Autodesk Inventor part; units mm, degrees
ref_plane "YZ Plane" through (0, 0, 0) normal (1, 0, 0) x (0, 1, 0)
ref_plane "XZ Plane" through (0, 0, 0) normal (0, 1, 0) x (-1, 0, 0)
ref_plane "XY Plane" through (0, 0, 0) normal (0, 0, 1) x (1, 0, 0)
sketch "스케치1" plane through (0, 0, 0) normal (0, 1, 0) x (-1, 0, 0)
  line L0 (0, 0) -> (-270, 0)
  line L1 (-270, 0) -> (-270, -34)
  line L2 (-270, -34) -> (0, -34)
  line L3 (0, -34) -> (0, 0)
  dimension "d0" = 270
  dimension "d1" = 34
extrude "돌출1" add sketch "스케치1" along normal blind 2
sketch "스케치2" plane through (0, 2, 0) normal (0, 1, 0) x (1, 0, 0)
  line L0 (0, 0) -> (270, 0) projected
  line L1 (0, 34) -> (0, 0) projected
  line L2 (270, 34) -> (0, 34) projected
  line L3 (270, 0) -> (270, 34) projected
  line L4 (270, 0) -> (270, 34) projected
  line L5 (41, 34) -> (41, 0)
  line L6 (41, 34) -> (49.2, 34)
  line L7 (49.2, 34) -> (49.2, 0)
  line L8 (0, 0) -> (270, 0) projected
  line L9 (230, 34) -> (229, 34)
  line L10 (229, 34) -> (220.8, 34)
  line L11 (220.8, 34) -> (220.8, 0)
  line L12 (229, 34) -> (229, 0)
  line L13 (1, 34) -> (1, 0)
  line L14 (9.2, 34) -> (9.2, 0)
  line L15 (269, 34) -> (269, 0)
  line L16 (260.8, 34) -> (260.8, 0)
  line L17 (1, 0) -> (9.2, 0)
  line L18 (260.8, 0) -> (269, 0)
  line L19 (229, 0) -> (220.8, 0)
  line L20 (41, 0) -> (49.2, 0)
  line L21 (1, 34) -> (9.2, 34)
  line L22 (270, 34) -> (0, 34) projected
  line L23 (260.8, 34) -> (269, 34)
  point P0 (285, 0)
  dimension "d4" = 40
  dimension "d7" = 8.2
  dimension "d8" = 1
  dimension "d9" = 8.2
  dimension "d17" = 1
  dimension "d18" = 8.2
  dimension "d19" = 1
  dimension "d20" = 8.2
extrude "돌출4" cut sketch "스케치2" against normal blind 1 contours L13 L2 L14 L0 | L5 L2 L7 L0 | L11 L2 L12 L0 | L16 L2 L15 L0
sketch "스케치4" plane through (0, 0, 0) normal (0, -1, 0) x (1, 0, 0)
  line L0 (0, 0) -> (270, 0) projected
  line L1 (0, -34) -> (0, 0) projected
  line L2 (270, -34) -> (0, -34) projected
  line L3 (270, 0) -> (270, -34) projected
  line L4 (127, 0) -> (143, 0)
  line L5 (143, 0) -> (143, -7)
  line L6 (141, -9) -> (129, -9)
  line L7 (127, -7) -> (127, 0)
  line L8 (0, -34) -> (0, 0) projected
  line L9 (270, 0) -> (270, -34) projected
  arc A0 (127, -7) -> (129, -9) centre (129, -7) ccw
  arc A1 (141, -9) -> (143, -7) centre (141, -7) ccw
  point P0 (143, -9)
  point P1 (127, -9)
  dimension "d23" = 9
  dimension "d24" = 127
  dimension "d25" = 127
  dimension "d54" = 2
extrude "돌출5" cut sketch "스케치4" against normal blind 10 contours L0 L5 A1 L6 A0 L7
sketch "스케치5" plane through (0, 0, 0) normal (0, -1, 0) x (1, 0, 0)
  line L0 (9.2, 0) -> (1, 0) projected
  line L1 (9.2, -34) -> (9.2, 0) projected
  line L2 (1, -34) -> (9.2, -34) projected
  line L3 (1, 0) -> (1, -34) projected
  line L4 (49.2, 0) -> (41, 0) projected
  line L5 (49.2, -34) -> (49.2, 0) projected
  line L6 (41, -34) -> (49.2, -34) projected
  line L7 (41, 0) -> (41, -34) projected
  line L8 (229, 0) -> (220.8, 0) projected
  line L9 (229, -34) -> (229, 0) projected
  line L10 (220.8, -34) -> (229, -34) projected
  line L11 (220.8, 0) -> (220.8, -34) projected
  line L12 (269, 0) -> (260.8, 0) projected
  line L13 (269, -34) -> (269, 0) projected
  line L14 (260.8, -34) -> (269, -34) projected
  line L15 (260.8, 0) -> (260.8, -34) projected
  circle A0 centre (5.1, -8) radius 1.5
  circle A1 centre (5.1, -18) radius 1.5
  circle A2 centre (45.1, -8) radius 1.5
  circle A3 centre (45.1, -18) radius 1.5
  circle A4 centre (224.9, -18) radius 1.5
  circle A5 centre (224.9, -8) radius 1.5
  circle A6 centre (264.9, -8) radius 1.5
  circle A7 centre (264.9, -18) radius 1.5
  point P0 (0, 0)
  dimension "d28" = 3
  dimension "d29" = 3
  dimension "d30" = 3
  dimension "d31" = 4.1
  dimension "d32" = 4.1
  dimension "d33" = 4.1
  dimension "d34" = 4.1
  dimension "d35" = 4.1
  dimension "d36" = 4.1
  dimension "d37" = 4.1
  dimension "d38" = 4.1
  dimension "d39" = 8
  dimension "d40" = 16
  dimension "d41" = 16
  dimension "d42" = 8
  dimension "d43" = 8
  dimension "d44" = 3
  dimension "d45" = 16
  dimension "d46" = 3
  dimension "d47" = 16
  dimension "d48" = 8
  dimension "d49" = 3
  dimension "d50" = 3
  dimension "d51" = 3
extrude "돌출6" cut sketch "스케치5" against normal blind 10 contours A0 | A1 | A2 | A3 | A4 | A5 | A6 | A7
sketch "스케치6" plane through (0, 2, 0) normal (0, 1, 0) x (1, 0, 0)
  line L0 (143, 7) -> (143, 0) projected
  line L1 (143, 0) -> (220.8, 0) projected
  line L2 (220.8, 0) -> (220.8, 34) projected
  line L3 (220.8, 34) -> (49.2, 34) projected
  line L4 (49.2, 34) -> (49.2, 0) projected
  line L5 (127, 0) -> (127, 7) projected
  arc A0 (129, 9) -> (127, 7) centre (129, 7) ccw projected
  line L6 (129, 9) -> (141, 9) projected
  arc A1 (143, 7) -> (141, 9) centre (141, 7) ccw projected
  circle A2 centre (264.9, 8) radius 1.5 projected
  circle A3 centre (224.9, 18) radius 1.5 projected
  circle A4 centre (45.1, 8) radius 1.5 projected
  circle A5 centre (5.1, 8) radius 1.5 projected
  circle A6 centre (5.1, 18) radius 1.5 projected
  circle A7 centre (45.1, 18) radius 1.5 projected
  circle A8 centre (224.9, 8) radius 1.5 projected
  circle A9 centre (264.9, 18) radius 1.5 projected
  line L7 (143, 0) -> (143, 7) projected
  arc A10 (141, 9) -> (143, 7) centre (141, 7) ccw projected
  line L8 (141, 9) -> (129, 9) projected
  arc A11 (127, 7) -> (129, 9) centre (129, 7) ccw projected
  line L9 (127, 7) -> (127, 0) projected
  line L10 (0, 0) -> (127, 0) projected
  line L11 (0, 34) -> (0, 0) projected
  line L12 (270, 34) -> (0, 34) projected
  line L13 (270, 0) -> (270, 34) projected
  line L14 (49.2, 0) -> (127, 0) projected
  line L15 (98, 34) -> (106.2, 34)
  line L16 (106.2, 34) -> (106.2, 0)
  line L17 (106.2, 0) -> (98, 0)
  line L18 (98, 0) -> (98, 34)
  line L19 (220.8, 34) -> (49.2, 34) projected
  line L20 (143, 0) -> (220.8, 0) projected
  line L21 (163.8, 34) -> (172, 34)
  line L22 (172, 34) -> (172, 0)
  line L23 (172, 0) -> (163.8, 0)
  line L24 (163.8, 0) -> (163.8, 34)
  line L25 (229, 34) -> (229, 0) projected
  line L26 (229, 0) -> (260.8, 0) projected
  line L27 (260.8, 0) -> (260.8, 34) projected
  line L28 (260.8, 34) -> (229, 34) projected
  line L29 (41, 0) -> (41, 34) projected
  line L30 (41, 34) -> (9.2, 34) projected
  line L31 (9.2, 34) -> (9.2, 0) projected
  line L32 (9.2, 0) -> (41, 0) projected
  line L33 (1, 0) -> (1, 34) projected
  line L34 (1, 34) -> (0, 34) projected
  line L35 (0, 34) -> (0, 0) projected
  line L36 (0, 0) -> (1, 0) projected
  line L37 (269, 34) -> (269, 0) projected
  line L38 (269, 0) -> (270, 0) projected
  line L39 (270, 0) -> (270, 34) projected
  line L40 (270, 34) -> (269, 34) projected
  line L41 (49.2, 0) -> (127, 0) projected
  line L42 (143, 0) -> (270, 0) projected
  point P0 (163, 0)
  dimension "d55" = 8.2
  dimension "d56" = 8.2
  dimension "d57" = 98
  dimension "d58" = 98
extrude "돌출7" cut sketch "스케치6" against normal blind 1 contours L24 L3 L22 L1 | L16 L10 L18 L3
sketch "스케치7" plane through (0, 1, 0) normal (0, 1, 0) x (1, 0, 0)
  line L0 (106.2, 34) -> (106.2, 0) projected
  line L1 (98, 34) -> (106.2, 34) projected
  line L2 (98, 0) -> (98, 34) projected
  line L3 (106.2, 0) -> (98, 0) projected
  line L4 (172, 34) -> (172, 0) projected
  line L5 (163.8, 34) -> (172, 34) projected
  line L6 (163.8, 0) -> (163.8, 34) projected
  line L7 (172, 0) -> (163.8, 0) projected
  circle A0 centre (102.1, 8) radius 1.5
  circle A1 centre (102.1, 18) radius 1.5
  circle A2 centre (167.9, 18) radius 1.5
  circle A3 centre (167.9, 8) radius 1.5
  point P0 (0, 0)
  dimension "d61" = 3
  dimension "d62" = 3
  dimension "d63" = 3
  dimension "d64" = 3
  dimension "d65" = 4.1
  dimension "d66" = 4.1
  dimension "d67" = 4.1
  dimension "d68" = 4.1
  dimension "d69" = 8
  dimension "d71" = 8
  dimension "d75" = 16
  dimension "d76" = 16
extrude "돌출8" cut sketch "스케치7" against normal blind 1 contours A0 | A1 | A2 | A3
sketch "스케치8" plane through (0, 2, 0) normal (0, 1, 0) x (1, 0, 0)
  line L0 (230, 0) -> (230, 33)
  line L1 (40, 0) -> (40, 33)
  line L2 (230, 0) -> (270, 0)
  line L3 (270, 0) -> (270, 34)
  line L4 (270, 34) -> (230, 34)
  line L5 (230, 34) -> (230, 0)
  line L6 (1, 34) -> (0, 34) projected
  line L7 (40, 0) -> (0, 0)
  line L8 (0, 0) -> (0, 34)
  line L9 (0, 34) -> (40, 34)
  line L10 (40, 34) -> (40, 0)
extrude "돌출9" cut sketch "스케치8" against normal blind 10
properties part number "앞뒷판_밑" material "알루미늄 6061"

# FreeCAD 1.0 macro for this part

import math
import FreeCAD as App
import Part
import Sketcher

V = App.Vector
Q = App.Units.Quantity

doc = App.newDocument("Part")
body = doc.addObject("PartDesign::Body", "Body")

# Sketch on XZ plane
sketch1 = body.newObject("Sketcher::SketchObject", "Sketch")
sketch1.AttachmentSupport = (doc.getObject("XZ_Plane"), [""])
sketch1.MapMode = "FlatFace"
sketch1.addGeometry([
    Part.LineSegment(V(0, -34, 0), V(0, 0, 0)),
    Part.LineSegment(V(0, 0, 0), V(270, 0, 0)),
    Part.LineSegment(V(270, 0, 0), V(270, -34, 0)),
    Part.LineSegment(V(270, -34, 0), V(0, -34, 0)),
], False)
sketch1.addConstraint([
    Sketcher.Constraint("Coincident", 0, 2, 1, 1),
    Sketcher.Constraint("Coincident", 1, 2, 2, 1),
    Sketcher.Constraint("Coincident", 2, 2, 3, 1),
    Sketcher.Constraint("Coincident", 3, 2, 0, 1),
    Sketcher.Constraint("Vertical", 0),
    Sketcher.Constraint("Horizontal", 1),
    Sketcher.Constraint("Vertical", 2),
    Sketcher.Constraint("Horizontal", 3),
    Sketcher.Constraint("Coincident", 0, 2, -1, 1),
    Sketcher.Constraint("DistanceX", 1, 1, 1, 2, Q("270 mm")),
    Sketcher.Constraint("DistanceY", 0, 1, 0, 2, Q("34 mm")),
])
pad1 = body.newObject("PartDesign::Pad", "Pad")
pad1.Profile = sketch1
pad1.Length = 2
pad1.Reversed = True

# Sketch on XZ plane
sketch2 = body.newObject("Sketcher::SketchObject", "Sketch001")
sketch2.AttachmentSupport = (doc.getObject("XZ_Plane"), [""])
sketch2.MapMode = "FlatFace"
sketch2.AttachmentOffset = App.Placement(V(0, 0, -2), App.Rotation())
sketch2.addGeometry([
    Part.LineSegment(V(1, -34, 0), V(1, 0, 0)),  # 0
    Part.LineSegment(V(1, 0, 0), V(9.2, 0, 0)),  # 1
    Part.LineSegment(V(9.2, 0, 0), V(9.2, -34, 0)),  # 2
    Part.LineSegment(V(9.2, -34, 0), V(1, -34, 0)),  # 3
    Part.LineSegment(V(41, -34, 0), V(41, 0, 0)),  # 4
    Part.LineSegment(V(41, 0, 0), V(49.2, 0, 0)),  # 5
    Part.LineSegment(V(49.2, 0, 0), V(49.2, -34, 0)),  # 6
    Part.LineSegment(V(49.2, -34, 0), V(41, -34, 0)),  # 7
    Part.LineSegment(V(220.8, -34, 0), V(220.8, 0, 0)),  # 8
    Part.LineSegment(V(220.8, 0, 0), V(229, 0, 0)),  # 9
    Part.LineSegment(V(229, 0, 0), V(229, -34, 0)),  # 10
    Part.LineSegment(V(229, -34, 0), V(220.8, -34, 0)),  # 11
    Part.LineSegment(V(260.8, -34, 0), V(260.8, 0, 0)),  # 12
    Part.LineSegment(V(260.8, 0, 0), V(269, 0, 0)),  # 13
    Part.LineSegment(V(269, 0, 0), V(269, -34, 0)),  # 14
    Part.LineSegment(V(269, -34, 0), V(260.8, -34, 0)),  # 15
], False)
sketch2.addConstraint([
    Sketcher.Constraint("Coincident", 0, 2, 1, 1),
    Sketcher.Constraint("Coincident", 1, 2, 2, 1),
    Sketcher.Constraint("Coincident", 2, 2, 3, 1),
    Sketcher.Constraint("Coincident", 3, 2, 0, 1),
    Sketcher.Constraint("Coincident", 4, 2, 5, 1),
    Sketcher.Constraint("Coincident", 5, 2, 6, 1),
    Sketcher.Constraint("Coincident", 6, 2, 7, 1),
    Sketcher.Constraint("Coincident", 7, 2, 4, 1),
    Sketcher.Constraint("Coincident", 8, 2, 9, 1),
    Sketcher.Constraint("Coincident", 9, 2, 10, 1),
    Sketcher.Constraint("Coincident", 10, 2, 11, 1),
    Sketcher.Constraint("Coincident", 11, 2, 8, 1),
    Sketcher.Constraint("Coincident", 12, 2, 13, 1),
    Sketcher.Constraint("Coincident", 13, 2, 14, 1),
    Sketcher.Constraint("Coincident", 14, 2, 15, 1),
    Sketcher.Constraint("Coincident", 15, 2, 12, 1),
    Sketcher.Constraint("Vertical", 0),
    Sketcher.Constraint("Horizontal", 1),
    Sketcher.Constraint("Vertical", 2),
    Sketcher.Constraint("Horizontal", 3),
    Sketcher.Constraint("Vertical", 4),
    Sketcher.Constraint("Horizontal", 5),
    Sketcher.Constraint("Vertical", 6),
    Sketcher.Constraint("Horizontal", 7),
    Sketcher.Constraint("Vertical", 8),
    Sketcher.Constraint("Horizontal", 9),
    Sketcher.Constraint("Vertical", 10),
    Sketcher.Constraint("Horizontal", 11),
    Sketcher.Constraint("Vertical", 12),
    Sketcher.Constraint("Horizontal", 13),
    Sketcher.Constraint("Vertical", 14),
    Sketcher.Constraint("Horizontal", 15),
    Sketcher.Constraint("PointOnObject", 0, 2, -1),
    Sketcher.Constraint("PointOnObject", 4, 2, -1),
    Sketcher.Constraint("PointOnObject", 8, 2, -1),
    Sketcher.Constraint("PointOnObject", 12, 2, -1),
    Sketcher.Constraint("Horizontal", 3, 2, 6, 2),
    Sketcher.Constraint("Horizontal", 7, 2, 10, 2),
    Sketcher.Constraint("Horizontal", 11, 2, 14, 2),
    Sketcher.Constraint("Equal", 3, 5),
    Sketcher.Constraint("Equal", 7, 9),
    Sketcher.Constraint("Equal", 11, 13),
    Sketcher.Constraint("DistanceX", 1, 1, 1, 2, Q("8.2 mm")),
    Sketcher.Constraint("DistanceX", -1, 1, 0, 2, Q("1 mm")),
    Sketcher.Constraint("DistanceX", 0, 2, 4, 2, Q("40 mm")),
    Sketcher.Constraint("DistanceX", 8, 2, 12, 2, Q("40 mm")),
    Sketcher.Constraint("DistanceY", 0, 1, 0, 2, Q("34 mm")),
    Sketcher.Constraint("DistanceX", -1, 1, 9, 2, Q("229 mm")),
])
pocket1 = body.newObject("PartDesign::Pocket", "Pocket")
pocket1.Profile = sketch2
pocket1.Length = 1
pocket1.Reversed = True

# Sketch on XZ plane
sketch3 = body.newObject("Sketcher::SketchObject", "Sketch002")
sketch3.AttachmentSupport = (doc.getObject("XZ_Plane"), [""])
sketch3.MapMode = "FlatFace"
sketch3.addGeometry([
    Part.LineSegment(V(143, 0, 0), V(127, 0, 0)),  # 0
    Part.LineSegment(V(127, 0, 0), V(127, -7, 0)),  # 1
    Part.ArcOfCircle(Part.Circle(V(129, -7, 0), V(0, 0, 1), 2), math.radians(180), math.radians(270)),  # 2
    Part.LineSegment(V(129, -9, 0), V(141, -9, 0)),  # 3
    Part.ArcOfCircle(Part.Circle(V(141, -7, 0), V(0, 0, 1), 2), math.radians(-90), math.radians(0)),  # 4
    Part.LineSegment(V(143, -7, 0), V(143, 0, 0)),  # 5
], False)
sketch3.addConstraint([
    Sketcher.Constraint("Coincident", 0, 2, 1, 1),
    Sketcher.Constraint("Tangent", 1, 2, 2, 1),
    Sketcher.Constraint("Tangent", 2, 2, 3, 1),
    Sketcher.Constraint("Tangent", 3, 2, 4, 1),
    Sketcher.Constraint("Tangent", 4, 2, 5, 1),
    Sketcher.Constraint("Coincident", 5, 2, 0, 1),
    Sketcher.Constraint("Horizontal", 0),
    Sketcher.Constraint("Vertical", 1),
    Sketcher.Constraint("Horizontal", 3),
    Sketcher.Constraint("Vertical", 5),
    Sketcher.Constraint("Equal", 2, 4),
    Sketcher.Constraint("PointOnObject", 0, 2, -1),
    Sketcher.Constraint("Radius", 2, Q("2 mm")),
    Sketcher.Constraint("DistanceX", -1, 1, 0, 2, Q("127 mm")),
    Sketcher.Constraint("DistanceY", 2, 2, -1, 1, Q("9 mm")),
    Sketcher.Constraint("DistanceX", 0, 2, 0, 1, Q("16 mm")),
])
pocket2 = body.newObject("PartDesign::Pocket", "Pocket001")
pocket2.Profile = sketch3
pocket2.Length = 10

# Sketch on XZ plane
sketch4 = body.newObject("Sketcher::SketchObject", "Sketch003")
sketch4.AttachmentSupport = (doc.getObject("XZ_Plane"), [""])
sketch4.MapMode = "FlatFace"
sketch4.addGeometry([
    Part.Circle(V(5.1, -8, 0), V(0, 0, 1), 1.5),  # 0
    Part.Circle(V(5.1, -18, 0), V(0, 0, 1), 1.5),  # 1
    Part.Circle(V(45.1, -8, 0), V(0, 0, 1), 1.5),  # 2
    Part.Circle(V(45.1, -18, 0), V(0, 0, 1), 1.5),  # 3
    Part.Circle(V(224.9, -18, 0), V(0, 0, 1), 1.5),  # 4
    Part.Circle(V(224.9, -8, 0), V(0, 0, 1), 1.5),  # 5
    Part.Circle(V(264.9, -8, 0), V(0, 0, 1), 1.5),  # 6
    Part.Circle(V(264.9, -18, 0), V(0, 0, 1), 1.5),  # 7
], False)
sketch4.addConstraint([
    Sketcher.Constraint("Equal", 0, 1),
    Sketcher.Constraint("Equal", 1, 2),
    Sketcher.Constraint("Equal", 2, 3),
    Sketcher.Constraint("Equal", 3, 4),
    Sketcher.Constraint("Equal", 4, 5),
    Sketcher.Constraint("Equal", 5, 6),
    Sketcher.Constraint("Equal", 6, 7),
    Sketcher.Constraint("Horizontal", 0, 3, 2, 3),
    Sketcher.Constraint("Horizontal", 1, 3, 3, 3),
    Sketcher.Constraint("Horizontal", 3, 3, 4, 3),
    Sketcher.Constraint("Horizontal", 2, 3, 5, 3),
    Sketcher.Constraint("Horizontal", 5, 3, 6, 3),
    Sketcher.Constraint("Horizontal", 4, 3, 7, 3),
    Sketcher.Constraint("Vertical", 0, 3, 1, 3),
    Sketcher.Constraint("Vertical", 2, 3, 3, 3),
    Sketcher.Constraint("Vertical", 4, 3, 5, 3),
    Sketcher.Constraint("Vertical", 6, 3, 7, 3),
    Sketcher.Constraint("Diameter", 0, Q("3 mm")),
    Sketcher.Constraint("DistanceY", 0, 3, -1, 1, Q("8 mm")),
    Sketcher.Constraint("DistanceY", 1, 3, -1, 1, Q("18 mm")),
    Sketcher.Constraint("DistanceX", 0, 3, 2, 3, Q("40 mm")),
    Sketcher.Constraint("DistanceX", 5, 3, 6, 3, Q("40 mm")),
    Sketcher.Constraint("DistanceX", -1, 1, 0, 3, Q("5.1 mm")),
    Sketcher.Constraint("DistanceX", -1, 1, 4, 3, Q("224.9 mm")),
])
pocket3 = body.newObject("PartDesign::Pocket", "Pocket002")
pocket3.Profile = sketch4
pocket3.Length = 10

# Sketch on XZ plane
sketch5 = body.newObject("Sketcher::SketchObject", "Sketch004")
sketch5.AttachmentSupport = (doc.getObject("XZ_Plane"), [""])
sketch5.MapMode = "FlatFace"
sketch5.AttachmentOffset = App.Placement(V(0, 0, -2), App.Rotation())
sketch5.addGeometry([
    Part.LineSegment(V(163.8, -34, 0), V(163.8, 0, 0)),  # 0
    Part.LineSegment(V(163.8, 0, 0), V(172, 0, 0)),  # 1
    Part.LineSegment(V(172, 0, 0), V(172, -34, 0)),  # 2
    Part.LineSegment(V(172, -34, 0), V(163.8, -34, 0)),  # 3
    Part.LineSegment(V(106.2, 0, 0), V(106.2, -34, 0)),  # 4
    Part.LineSegment(V(106.2, -34, 0), V(98, -34, 0)),  # 5
    Part.LineSegment(V(98, -34, 0), V(98, 0, 0)),  # 6
    Part.LineSegment(V(98, 0, 0), V(106.2, 0, 0)),  # 7
], False)
sketch5.addConstraint([
    Sketcher.Constraint("Coincident", 0, 2, 1, 1),
    Sketcher.Constraint("Coincident", 1, 2, 2, 1),
    Sketcher.Constraint("Coincident", 2, 2, 3, 1),
    Sketcher.Constraint("Coincident", 3, 2, 0, 1),
    Sketcher.Constraint("Coincident", 4, 2, 5, 1),
    Sketcher.Constraint("Coincident", 5, 2, 6, 1),
    Sketcher.Constraint("Coincident", 6, 2, 7, 1),
    Sketcher.Constraint("Coincident", 7, 2, 4, 1),
    Sketcher.Constraint("Vertical", 0),
    Sketcher.Constraint("Horizontal", 1),
    Sketcher.Constraint("Vertical", 2),
    Sketcher.Constraint("Horizontal", 3),
    Sketcher.Constraint("Vertical", 4),
    Sketcher.Constraint("Horizontal", 5),
    Sketcher.Constraint("Vertical", 6),
    Sketcher.Constraint("Horizontal", 7),
    Sketcher.Constraint("PointOnObject", 0, 2, -1),
    Sketcher.Constraint("PointOnObject", 6, 2, -1),
    Sketcher.Constraint("Horizontal", 3, 2, 4, 2),
    Sketcher.Constraint("Equal", 3, 5),
    Sketcher.Constraint("DistanceX", 1, 1, 1, 2, Q("8.2 mm")),
    Sketcher.Constraint("DistanceX", -1, 1, 5, 2, Q("98 mm")),
    Sketcher.Constraint("DistanceY", 0, 1, 0, 2, Q("34 mm")),
    Sketcher.Constraint("DistanceX", -1, 1, 1, 2, Q("172 mm")),
])
pocket4 = body.newObject("PartDesign::Pocket", "Pocket003")
pocket4.Profile = sketch5
pocket4.Length = 1
pocket4.Reversed = True

# Sketch on XZ plane
sketch6 = body.newObject("Sketcher::SketchObject", "Sketch005")
sketch6.AttachmentSupport = (doc.getObject("XZ_Plane"), [""])
sketch6.MapMode = "FlatFace"
sketch6.AttachmentOffset = App.Placement(V(0, 0, -1), App.Rotation())
sketch6.addGeometry([
    Part.Circle(V(102.1, -8, 0), V(0, 0, 1), 1.5),
    Part.Circle(V(102.1, -18, 0), V(0, 0, 1), 1.5),
    Part.Circle(V(167.9, -18, 0), V(0, 0, 1), 1.5),
    Part.Circle(V(167.9, -8, 0), V(0, 0, 1), 1.5),
], False)
sketch6.addConstraint([
    Sketcher.Constraint("Equal", 0, 1),
    Sketcher.Constraint("Equal", 1, 2),
    Sketcher.Constraint("Equal", 2, 3),
    Sketcher.Constraint("Horizontal", 1, 3, 2, 3),
    Sketcher.Constraint("Horizontal", 0, 3, 3, 3),
    Sketcher.Constraint("Vertical", 0, 3, 1, 3),
    Sketcher.Constraint("Vertical", 2, 3, 3, 3),
    Sketcher.Constraint("Diameter", 0, Q("3 mm")),
    Sketcher.Constraint("DistanceY", 0, 3, -1, 1, Q("8 mm")),
    Sketcher.Constraint("DistanceY", 1, 3, -1, 1, Q("18 mm")),
    Sketcher.Constraint("DistanceX", -1, 1, 0, 3, Q("102.1 mm")),
    Sketcher.Constraint("DistanceX", -1, 1, 2, 3, Q("167.9 mm")),
])
pocket5 = body.newObject("PartDesign::Pocket", "Pocket004")
pocket5.Profile = sketch6
pocket5.Length = 1
pocket5.Reversed = True

# Sketch on XZ plane
sketch7 = body.newObject("Sketcher::SketchObject", "Sketch006")
sketch7.AttachmentSupport = (doc.getObject("XZ_Plane"), [""])
sketch7.MapMode = "FlatFace"
sketch7.AttachmentOffset = App.Placement(V(0, 0, -2), App.Rotation())
sketch7.addGeometry([
    Part.LineSegment(V(230, -34, 0), V(230, 0, 0)),  # 0
    Part.LineSegment(V(230, 0, 0), V(270, 0, 0)),  # 1
    Part.LineSegment(V(270, 0, 0), V(270, -34, 0)),  # 2
    Part.LineSegment(V(270, -34, 0), V(230, -34, 0)),  # 3
    Part.LineSegment(V(0, 0, 0), V(40, 0, 0)),  # 4
    Part.LineSegment(V(40, 0, 0), V(40, -34, 0)),  # 5
    Part.LineSegment(V(40, -34, 0), V(0, -34, 0)),  # 6
    Part.LineSegment(V(0, -34, 0), V(0, 0, 0)),  # 7
], False)
sketch7.addConstraint([
    Sketcher.Constraint("Coincident", 0, 2, 1, 1),
    Sketcher.Constraint("Coincident", 1, 2, 2, 1),
    Sketcher.Constraint("Coincident", 2, 2, 3, 1),
    Sketcher.Constraint("Coincident", 3, 2, 0, 1),
    Sketcher.Constraint("Coincident", 4, 2, 5, 1),
    Sketcher.Constraint("Coincident", 5, 2, 6, 1),
    Sketcher.Constraint("Coincident", 6, 2, 7, 1),
    Sketcher.Constraint("Coincident", 7, 2, 4, 1),
    Sketcher.Constraint("Vertical", 0),
    Sketcher.Constraint("Horizontal", 1),
    Sketcher.Constraint("Vertical", 2),
    Sketcher.Constraint("Horizontal", 3),
    Sketcher.Constraint("Horizontal", 4),
    Sketcher.Constraint("Vertical", 5),
    Sketcher.Constraint("Horizontal", 6),
    Sketcher.Constraint("Vertical", 7),
    Sketcher.Constraint("Coincident", 7, 2, -1, 1),
    Sketcher.Constraint("PointOnObject", 0, 2, -1),
    Sketcher.Constraint("Horizontal", 3, 2, 5, 2),
    Sketcher.Constraint("Equal", 3, 4),
    Sketcher.Constraint("DistanceX", 1, 1, 1, 2, Q("40 mm")),
    Sketcher.Constraint("DistanceY", 0, 1, 0, 2, Q("34 mm")),
    Sketcher.Constraint("DistanceX", -1, 1, 0, 2, Q("230 mm")),
])
pocket6 = body.newObject("PartDesign::Pocket", "Pocket005")
pocket6.Profile = sketch7
pocket6.Length = 10
pocket6.Reversed = True

doc.recompute()
